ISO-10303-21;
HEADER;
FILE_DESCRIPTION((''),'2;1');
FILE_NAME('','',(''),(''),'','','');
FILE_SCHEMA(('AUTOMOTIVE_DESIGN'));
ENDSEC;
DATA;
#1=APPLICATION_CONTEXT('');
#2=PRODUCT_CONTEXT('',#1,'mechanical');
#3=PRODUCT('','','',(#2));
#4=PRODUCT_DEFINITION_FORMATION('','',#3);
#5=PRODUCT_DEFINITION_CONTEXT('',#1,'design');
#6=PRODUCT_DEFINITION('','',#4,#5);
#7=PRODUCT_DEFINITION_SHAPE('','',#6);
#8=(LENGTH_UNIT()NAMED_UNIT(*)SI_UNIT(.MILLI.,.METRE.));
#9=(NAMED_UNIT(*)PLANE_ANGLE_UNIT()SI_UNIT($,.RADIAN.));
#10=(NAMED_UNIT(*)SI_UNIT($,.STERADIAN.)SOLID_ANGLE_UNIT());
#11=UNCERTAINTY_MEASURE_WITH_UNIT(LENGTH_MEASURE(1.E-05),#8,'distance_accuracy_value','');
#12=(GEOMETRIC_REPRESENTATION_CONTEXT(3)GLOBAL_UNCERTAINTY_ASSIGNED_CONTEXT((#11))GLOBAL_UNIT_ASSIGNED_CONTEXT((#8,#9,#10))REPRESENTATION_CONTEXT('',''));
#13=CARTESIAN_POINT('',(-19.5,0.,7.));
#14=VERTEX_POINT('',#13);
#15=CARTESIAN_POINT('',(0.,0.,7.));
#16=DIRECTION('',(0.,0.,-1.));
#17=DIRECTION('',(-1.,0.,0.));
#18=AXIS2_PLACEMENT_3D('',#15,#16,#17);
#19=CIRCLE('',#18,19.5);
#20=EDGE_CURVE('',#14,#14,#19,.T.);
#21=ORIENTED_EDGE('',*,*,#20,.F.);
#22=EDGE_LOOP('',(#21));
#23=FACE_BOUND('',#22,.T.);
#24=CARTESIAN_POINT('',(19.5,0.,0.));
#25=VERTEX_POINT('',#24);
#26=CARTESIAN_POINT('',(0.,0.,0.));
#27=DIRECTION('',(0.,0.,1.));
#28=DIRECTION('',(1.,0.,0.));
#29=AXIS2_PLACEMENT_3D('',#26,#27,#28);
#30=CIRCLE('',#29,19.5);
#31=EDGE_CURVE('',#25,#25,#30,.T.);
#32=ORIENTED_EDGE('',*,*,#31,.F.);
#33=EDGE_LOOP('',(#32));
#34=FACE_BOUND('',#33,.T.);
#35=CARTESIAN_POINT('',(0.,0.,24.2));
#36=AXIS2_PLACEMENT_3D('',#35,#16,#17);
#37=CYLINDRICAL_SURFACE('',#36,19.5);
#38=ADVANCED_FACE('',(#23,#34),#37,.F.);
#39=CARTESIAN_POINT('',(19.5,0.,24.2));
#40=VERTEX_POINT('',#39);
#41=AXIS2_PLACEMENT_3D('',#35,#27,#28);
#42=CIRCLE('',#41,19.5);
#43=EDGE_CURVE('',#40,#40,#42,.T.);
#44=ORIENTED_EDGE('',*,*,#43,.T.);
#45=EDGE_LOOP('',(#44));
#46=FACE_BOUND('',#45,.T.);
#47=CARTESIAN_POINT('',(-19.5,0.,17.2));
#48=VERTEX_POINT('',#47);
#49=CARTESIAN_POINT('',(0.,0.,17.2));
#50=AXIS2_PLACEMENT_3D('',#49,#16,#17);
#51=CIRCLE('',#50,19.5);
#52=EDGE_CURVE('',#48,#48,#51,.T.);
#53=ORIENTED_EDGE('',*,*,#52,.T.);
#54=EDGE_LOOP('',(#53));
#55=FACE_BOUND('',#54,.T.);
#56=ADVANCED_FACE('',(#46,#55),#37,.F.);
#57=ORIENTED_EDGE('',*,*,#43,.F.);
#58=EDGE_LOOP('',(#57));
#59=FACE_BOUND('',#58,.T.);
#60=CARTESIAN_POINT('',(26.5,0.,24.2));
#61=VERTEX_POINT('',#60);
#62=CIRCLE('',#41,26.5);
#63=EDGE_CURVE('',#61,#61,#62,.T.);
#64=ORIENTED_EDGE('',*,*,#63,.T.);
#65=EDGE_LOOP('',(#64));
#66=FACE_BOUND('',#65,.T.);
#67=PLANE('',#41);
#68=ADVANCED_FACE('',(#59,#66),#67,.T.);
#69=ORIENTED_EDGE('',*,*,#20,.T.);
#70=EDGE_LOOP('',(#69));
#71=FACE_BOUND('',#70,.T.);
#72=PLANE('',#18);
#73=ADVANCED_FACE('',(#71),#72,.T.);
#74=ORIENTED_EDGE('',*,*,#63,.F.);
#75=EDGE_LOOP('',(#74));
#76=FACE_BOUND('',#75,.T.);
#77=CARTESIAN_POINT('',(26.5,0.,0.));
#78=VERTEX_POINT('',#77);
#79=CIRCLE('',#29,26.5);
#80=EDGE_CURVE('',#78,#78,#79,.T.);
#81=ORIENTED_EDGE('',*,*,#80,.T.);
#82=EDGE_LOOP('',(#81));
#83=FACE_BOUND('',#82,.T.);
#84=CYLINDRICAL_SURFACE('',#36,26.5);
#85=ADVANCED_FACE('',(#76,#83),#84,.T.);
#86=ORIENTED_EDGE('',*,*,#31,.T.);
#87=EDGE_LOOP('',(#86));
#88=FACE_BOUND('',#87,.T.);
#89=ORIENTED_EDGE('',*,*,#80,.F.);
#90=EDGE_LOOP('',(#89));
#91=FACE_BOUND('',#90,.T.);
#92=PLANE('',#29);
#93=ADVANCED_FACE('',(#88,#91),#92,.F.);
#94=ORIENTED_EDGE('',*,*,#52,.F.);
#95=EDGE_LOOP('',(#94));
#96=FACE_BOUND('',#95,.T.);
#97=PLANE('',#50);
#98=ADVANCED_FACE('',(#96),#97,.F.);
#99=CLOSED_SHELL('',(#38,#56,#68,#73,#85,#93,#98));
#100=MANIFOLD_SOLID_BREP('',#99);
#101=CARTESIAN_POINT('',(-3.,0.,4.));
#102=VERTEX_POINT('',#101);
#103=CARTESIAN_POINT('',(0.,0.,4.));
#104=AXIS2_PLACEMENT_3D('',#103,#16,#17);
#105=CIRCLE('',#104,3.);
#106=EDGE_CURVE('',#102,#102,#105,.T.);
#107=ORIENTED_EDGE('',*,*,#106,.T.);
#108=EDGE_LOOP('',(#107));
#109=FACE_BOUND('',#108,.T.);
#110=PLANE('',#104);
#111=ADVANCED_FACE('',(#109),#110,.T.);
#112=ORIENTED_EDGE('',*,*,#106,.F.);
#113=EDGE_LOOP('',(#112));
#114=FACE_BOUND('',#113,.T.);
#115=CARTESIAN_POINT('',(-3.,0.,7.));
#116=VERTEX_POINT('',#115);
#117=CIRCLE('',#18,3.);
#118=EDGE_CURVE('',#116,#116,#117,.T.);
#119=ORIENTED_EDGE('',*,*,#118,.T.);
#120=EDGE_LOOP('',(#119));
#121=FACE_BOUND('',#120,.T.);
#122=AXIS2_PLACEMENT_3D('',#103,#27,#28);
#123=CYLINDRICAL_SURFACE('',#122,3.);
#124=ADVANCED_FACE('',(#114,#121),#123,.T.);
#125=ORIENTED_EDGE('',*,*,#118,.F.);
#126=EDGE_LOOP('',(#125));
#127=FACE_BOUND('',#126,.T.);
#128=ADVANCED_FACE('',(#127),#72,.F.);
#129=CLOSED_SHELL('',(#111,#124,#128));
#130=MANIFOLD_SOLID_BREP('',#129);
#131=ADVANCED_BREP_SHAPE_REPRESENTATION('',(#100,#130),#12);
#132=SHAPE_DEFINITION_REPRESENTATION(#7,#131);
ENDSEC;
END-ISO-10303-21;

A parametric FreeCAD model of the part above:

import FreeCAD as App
import Part
import Sketcher

doc = App.newDocument("Part")
body = doc.addObject("PartDesign::Body", "Body")

# Sketch on XY plane
sketch1 = body.newObject("Sketcher::SketchObject", "Sketch")
sketch1.AttachmentSupport = (doc.getObject("XY_Plane"), [""])
sketch1.MapMode = "FlatFace"
sketch1.addGeometry([
    Part.Circle(App.Vector(0, 0, 0), App.Vector(0, 0, 1), 26),
    Part.Circle(App.Vector(0, 0, 0), App.Vector(0, 0, 1), 20),
], False)
sketch1.addConstraint([
    Sketcher.Constraint("Coincident", 0, 3, -1, 1),
    Sketcher.Constraint("Coincident", 1, 3, -1, 1),
    Sketcher.Constraint("Diameter", 0, 53.0),
    Sketcher.Constraint("Diameter", 1, 39.0),
])
pad1 = body.newObject("PartDesign::Pad", "Pad")
pad1.Profile = sketch1
pad1.Length = 24.2

# Sketch on XY plane
sketch2 = body.newObject("Sketcher::SketchObject", "Sketch001")
sketch2.AttachmentSupport = (doc.getObject("XY_Plane"), [""])
sketch2.MapMode = "FlatFace"
sketch2.AttachmentOffset = App.Placement(App.Vector(0, 0, 7), App.Rotation())
sketch2.addGeometry(Part.Circle(App.Vector(0, 0, 0), App.Vector(0, 0, 1), 20), False)
sketch2.addConstraint([
    Sketcher.Constraint("Coincident", 0, 3, -1, 1),
    Sketcher.Constraint("Diameter", 0, 39.0),
])
pad2 = body.newObject("PartDesign::Pad", "Pad001")
pad2.Profile = sketch2
pad2.Length = 10.2
body2 = doc.addObject("PartDesign::Body", "Body001")

# Sketch on XY plane
sketch3 = body2.newObject("Sketcher::SketchObject", "Sketch002")
sketch3.AttachmentSupport = (doc.getObject("XY_Plane001"), [""])
sketch3.MapMode = "FlatFace"
sketch3.AttachmentOffset = App.Placement(App.Vector(0, 0, 7), App.Rotation())
sketch3.addGeometry(Part.Circle(App.Vector(0, 0, 0), App.Vector(0, 0, 1), 3), False)
sketch3.addConstraint([
    Sketcher.Constraint("Coincident", 0, 3, -1, 1),
    Sketcher.Constraint("Diameter", 0, 6.0),
])
pad3 = body2.newObject("PartDesign::Pad", "Pad002")
pad3.Profile = sketch3
pad3.Length = 3
pad3.Reversed = True

doc.recompute()
